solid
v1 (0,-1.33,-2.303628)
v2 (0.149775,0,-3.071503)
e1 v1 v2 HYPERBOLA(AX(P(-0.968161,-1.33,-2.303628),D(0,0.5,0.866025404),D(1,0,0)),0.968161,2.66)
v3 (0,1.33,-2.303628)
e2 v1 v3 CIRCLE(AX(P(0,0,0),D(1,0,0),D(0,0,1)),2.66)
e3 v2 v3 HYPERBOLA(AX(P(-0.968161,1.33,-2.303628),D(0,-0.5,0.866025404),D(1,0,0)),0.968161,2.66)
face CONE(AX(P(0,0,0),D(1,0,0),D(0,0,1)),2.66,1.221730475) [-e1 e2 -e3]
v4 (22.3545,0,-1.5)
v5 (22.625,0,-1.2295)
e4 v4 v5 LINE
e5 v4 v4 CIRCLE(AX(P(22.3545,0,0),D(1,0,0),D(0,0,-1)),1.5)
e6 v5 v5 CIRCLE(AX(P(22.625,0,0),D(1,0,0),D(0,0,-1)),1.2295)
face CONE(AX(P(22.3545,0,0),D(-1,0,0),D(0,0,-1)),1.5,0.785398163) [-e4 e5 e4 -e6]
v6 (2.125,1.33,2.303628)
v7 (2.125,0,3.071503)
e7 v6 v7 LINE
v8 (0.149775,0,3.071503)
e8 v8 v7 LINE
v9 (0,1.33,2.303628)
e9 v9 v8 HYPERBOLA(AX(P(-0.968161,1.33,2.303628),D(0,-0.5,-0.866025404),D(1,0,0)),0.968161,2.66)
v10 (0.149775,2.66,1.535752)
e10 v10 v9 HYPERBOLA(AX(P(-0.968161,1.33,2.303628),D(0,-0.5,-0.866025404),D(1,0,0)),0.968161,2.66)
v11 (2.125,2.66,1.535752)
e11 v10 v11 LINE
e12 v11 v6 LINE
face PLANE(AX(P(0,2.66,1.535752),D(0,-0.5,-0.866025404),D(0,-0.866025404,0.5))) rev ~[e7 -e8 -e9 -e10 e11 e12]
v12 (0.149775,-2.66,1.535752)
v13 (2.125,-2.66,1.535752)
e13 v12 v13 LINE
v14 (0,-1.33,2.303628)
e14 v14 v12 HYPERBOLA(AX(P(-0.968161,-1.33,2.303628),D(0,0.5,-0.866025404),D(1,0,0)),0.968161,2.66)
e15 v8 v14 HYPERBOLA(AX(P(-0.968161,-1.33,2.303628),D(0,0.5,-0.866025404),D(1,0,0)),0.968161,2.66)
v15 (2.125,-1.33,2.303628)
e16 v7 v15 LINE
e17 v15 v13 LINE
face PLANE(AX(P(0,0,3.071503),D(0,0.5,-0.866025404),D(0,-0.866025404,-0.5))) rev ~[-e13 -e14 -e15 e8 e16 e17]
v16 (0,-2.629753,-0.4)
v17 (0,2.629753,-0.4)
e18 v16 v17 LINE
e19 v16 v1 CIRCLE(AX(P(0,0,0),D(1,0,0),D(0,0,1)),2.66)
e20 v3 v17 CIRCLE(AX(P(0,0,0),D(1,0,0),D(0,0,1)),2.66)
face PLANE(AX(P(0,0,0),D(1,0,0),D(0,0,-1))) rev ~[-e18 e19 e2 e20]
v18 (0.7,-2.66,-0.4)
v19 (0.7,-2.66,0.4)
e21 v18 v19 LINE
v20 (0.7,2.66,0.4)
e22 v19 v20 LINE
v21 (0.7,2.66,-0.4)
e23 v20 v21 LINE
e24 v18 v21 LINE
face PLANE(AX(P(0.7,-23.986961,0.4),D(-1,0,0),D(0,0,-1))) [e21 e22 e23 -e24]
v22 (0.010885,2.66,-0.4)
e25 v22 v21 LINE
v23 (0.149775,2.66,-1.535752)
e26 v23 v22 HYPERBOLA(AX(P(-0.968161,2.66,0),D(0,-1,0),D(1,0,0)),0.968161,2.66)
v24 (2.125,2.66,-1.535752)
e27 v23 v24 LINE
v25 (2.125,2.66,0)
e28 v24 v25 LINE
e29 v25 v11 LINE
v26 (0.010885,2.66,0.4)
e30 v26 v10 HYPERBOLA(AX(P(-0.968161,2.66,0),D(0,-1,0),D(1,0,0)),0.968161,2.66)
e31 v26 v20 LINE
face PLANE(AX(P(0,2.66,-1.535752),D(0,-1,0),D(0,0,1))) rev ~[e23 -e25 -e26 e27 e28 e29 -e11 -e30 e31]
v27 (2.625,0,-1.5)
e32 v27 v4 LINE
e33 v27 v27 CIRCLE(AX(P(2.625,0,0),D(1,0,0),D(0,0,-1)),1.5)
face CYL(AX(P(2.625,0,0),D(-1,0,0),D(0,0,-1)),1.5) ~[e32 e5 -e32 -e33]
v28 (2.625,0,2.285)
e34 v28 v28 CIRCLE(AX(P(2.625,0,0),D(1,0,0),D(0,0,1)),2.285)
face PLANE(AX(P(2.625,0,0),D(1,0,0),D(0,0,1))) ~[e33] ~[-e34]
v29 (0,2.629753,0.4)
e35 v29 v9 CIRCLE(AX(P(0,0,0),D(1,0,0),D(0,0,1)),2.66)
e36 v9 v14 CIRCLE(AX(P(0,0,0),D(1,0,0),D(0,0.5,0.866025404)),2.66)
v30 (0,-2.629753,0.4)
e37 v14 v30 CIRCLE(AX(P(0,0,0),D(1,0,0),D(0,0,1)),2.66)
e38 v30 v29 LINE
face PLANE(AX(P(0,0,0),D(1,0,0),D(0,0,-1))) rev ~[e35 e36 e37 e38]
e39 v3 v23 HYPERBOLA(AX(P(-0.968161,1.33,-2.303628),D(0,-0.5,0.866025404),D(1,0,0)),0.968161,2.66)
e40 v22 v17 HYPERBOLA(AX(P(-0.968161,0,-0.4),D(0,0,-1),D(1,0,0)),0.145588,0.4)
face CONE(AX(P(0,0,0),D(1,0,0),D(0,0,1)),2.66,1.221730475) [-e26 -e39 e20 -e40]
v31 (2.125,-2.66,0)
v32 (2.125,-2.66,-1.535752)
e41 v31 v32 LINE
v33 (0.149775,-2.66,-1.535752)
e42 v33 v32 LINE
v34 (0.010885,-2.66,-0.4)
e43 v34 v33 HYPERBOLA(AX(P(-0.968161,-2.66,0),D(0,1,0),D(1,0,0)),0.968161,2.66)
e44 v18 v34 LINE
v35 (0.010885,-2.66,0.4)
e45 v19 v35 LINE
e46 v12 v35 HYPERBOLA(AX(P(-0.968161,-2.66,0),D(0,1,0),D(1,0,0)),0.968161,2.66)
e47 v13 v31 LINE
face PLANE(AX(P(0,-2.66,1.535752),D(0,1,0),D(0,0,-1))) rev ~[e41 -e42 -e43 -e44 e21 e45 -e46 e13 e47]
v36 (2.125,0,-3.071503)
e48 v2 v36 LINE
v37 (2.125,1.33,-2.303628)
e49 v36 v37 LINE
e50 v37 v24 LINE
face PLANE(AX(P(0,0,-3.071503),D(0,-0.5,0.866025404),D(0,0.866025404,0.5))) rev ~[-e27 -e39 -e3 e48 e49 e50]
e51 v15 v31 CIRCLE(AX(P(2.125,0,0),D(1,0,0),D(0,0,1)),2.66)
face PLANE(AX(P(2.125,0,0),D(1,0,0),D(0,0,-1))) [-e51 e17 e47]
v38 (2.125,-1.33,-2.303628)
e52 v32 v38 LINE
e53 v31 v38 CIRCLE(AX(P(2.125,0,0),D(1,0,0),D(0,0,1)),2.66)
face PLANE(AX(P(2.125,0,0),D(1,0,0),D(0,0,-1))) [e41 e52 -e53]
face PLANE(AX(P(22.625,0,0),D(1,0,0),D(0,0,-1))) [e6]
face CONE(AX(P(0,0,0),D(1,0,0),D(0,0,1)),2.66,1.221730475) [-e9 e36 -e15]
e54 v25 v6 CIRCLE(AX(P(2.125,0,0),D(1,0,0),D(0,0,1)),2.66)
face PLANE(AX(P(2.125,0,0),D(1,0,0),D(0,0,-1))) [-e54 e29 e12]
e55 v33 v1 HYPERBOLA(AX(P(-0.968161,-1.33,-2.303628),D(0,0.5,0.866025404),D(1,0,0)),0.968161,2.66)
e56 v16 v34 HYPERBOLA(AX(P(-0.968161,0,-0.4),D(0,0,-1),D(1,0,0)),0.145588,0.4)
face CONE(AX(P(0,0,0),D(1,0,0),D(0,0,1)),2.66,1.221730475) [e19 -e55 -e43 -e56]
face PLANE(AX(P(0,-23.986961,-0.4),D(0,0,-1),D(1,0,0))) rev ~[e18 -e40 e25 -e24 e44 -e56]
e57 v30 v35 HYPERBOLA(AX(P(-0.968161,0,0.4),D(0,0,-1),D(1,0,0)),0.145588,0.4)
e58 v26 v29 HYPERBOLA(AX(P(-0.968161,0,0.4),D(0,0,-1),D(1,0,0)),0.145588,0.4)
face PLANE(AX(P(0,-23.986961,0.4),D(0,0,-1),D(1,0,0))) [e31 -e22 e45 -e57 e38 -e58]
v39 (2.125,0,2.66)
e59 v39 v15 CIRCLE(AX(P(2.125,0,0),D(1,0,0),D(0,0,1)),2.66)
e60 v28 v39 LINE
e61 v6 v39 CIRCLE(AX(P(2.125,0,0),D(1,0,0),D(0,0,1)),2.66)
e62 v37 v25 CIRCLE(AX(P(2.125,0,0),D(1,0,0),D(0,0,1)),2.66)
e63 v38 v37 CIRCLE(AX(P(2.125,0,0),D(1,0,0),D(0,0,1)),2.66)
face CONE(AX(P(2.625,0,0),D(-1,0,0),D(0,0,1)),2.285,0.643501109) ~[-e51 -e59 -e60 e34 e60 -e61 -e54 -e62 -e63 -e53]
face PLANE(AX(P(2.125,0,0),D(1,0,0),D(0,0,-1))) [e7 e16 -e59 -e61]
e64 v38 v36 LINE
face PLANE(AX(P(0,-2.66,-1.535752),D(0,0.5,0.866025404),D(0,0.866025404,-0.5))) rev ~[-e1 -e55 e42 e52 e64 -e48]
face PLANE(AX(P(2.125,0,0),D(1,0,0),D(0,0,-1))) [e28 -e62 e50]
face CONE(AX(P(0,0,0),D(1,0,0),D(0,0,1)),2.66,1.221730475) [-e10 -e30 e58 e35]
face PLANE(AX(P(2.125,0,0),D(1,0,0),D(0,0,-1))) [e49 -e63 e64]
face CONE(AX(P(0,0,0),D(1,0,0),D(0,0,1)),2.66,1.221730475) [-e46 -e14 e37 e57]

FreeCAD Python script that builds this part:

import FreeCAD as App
import Part
import Sketcher

V = App.Vector
Q = App.Units.Quantity


def edges_at(feature, points):
    """Names of the edges that pass closest to the given points."""
    edges = feature.Shape.Edges
    near = lambda p: min(range(len(edges)), key=lambda i: edges[i].distToShape(Part.Vertex(*p))[0])
    return sorted({f"Edge{near(p) + 1}" for p in points})


def add_polygon(sketch, points):
    """Adds a closed chain of lines whose ends are joined by coincident constraints."""
    first, n = sketch.GeometryCount, len(points)
    for a, b in zip(points, points[1:] + points[:1]):
        sketch.addGeometry(Part.LineSegment(App.Vector(*a, 0), App.Vector(*b, 0)), False)
    for i in range(n):
        sketch.addConstraint(Sketcher.Constraint("Coincident", first + i, 2, first + (i + 1) % n, 1))

doc = App.newDocument("Part")
body = doc.addObject("PartDesign::Body", "Body")

# Sketch on YZ plane
sketch1 = doc.addObject("Sketcher::SketchObject", "Sketch")
body.addObject(sketch1)
sketch1.AttachmentSupport = (doc.YZ_Plane, [""])
sketch1.MapMode = "FlatFace"
add_polygon(sketch1, [(-2.7, -1.5), (0, -3.1), (2.7, -1.5), (2.7, 1.5), (0, 3.1), (-2.7, 1.5)])  # lines 0-5
sketch1.addConstraint(Sketcher.Constraint("Vertical", 2))
sketch1.addConstraint(Sketcher.Constraint("Vertical", 5))
sketch1.addConstraint(Sketcher.Constraint("Symmetric", 0, 2, 3, 2, -1, 1))
sketch1.addConstraint(Sketcher.Constraint("Symmetric", 1, 2, 4, 2, -1, 1))
sketch1.addConstraint(Sketcher.Constraint("PointOnObject", 0, 2, -2))
sketch1.addConstraint(Sketcher.Constraint("Parallel", 0, 3))
sketch1.addConstraint(Sketcher.Constraint("Horizontal", 2, 2, 4, 2))
sketch1.addConstraint(Sketcher.Constraint("Angle", 0, Q("-30 deg")))
sketch1.addConstraint(Sketcher.Constraint("DistanceX", -1, 1, 1, 2, 2.66))
sketch1.addConstraint(Sketcher.Constraint("DistanceY", 2, 1, 2, 2, 3.071503))
pad1 = doc.addObject("PartDesign::Pad", "Pad")
body.addObject(pad1)
pad1.Profile = sketch1
pad1.Length = 2.125

# Sketch on XY plane
sketch2 = doc.addObject("Sketcher::SketchObject", "Sketch001")
body.addObject(sketch2)
sketch2.AttachmentSupport = (doc.XY_Plane, [""])
sketch2.MapMode = "FlatFace"
add_polygon(sketch2, [(2.6, 0), (2.1, 0), (2.1, -2.7), (2.6, -2.3)])  # lines 0-3
sketch2.addConstraint(Sketcher.Constraint("Horizontal", 0))
sketch2.addConstraint(Sketcher.Constraint("Vertical", 1))
sketch2.addConstraint(Sketcher.Constraint("Vertical", 3))
sketch2.addConstraint(Sketcher.Constraint("PointOnObject", 0, 2, -1))
sketch2.addConstraint(Sketcher.Constraint("DistanceX", 0, 2, 0, 1, 0.5))
sketch2.addConstraint(Sketcher.Constraint("DistanceY", 1, 2, 1, 1, 2.66))
sketch2.addConstraint(Sketcher.Constraint("DistanceY", 3, 1, 3, 2, 2.285))
sketch2.addConstraint(Sketcher.Constraint("DistanceX", -1, 1, 0, 2, 2.125))
revolution = doc.addObject("PartDesign::Revolution", "Revolution")
body.addObject(revolution)
revolution.Profile = sketch2
revolution.ReferenceAxis = (sketch2, ["H_Axis"])
revolution.Angle = 360

# Sketch on YZ plane
sketch3 = doc.addObject("Sketcher::SketchObject", "Sketch002")
body.addObject(sketch3)
sketch3.AttachmentSupport = (doc.YZ_Plane, [""])
sketch3.MapMode = "FlatFace"
sketch3.AttachmentOffset = App.Placement(V(0, 0, 2.625), App.Rotation())
sketch3.addGeometry(Part.Circle(V(0, 0, 0), V(0, 0, 1), 1.5), False)
sketch3.addConstraint(Sketcher.Constraint("Coincident", 0, 3, -1, 1))
sketch3.addConstraint(Sketcher.Constraint("Diameter", 0, 3.0))
pad2 = doc.addObject("PartDesign::Pad", "Pad001")
body.addObject(pad2)
pad2.Profile = sketch3
pad2.Length = 20
doc.recompute()

chamfer = doc.addObject("PartDesign::Chamfer", "Chamfer")
body.addObject(chamfer)
chamfer.Base = (pad2, edges_at(pad2, [(22.625, 0, 1.5)]))
chamfer.Size = 0.2705

# Sketch on XZ plane
sketch4 = doc.addObject("Sketcher::SketchObject", "Sketch003")
body.addObject(sketch4)
sketch4.AttachmentSupport = (doc.XZ_Plane, [""])
sketch4.MapMode = "FlatFace"
add_polygon(sketch4, [(0, -3.07), (0, -2.66), (0.15, -3.07)])  # lines 0-2
sketch4.addConstraint(Sketcher.Constraint("Vertical", 0))
sketch4.addConstraint(Sketcher.Constraint("Horizontal", 2))
sketch4.addConstraint(Sketcher.Constraint("PointOnObject", 0, 2, -2))
sketch4.addConstraint(Sketcher.Constraint("Angle", 1, Q("-70 deg")))
sketch4.addConstraint(Sketcher.Constraint("DistanceY", 0, 2, -1, 1, 2.66))
sketch4.addConstraint(Sketcher.Constraint("DistanceX", 2, 2, 2, 1, 0.149775))
groove = doc.addObject("PartDesign::Groove", "Groove")
body.addObject(groove)
groove.Profile = sketch4
groove.ReferenceAxis = (sketch4, ["H_Axis"])
groove.Angle = 360

# Sketch on XZ plane
sketch5 = doc.addObject("Sketcher::SketchObject", "Sketch004")
body.addObject(sketch5)
sketch5.AttachmentSupport = (doc.XZ_Plane, [""])
sketch5.MapMode = "FlatFace"
add_polygon(sketch5, [(0, -0.4), (0, 0.4), (0.7, 0.4), (0.7, -0.4)])  # lines 0-3
sketch5.addConstraint(Sketcher.Constraint("Vertical", 0))
sketch5.addConstraint(Sketcher.Constraint("Horizontal", 1))
sketch5.addConstraint(Sketcher.Constraint("Vertical", 2))
sketch5.addConstraint(Sketcher.Constraint("Horizontal", 3))
sketch5.addConstraint(Sketcher.Constraint("Symmetric", 0, 2, 3, 2, -1, 1))
sketch5.addConstraint(Sketcher.Constraint("DistanceX", 1, 1, 1, 2, 0.7))
sketch5.addConstraint(Sketcher.Constraint("DistanceY", 0, 1, 0, 2, 0.8))
pocket1 = doc.addObject("PartDesign::Pocket", "Pocket")
body.addObject(pocket1)
pocket1.Profile = sketch5
pocket1.Type = "ThroughAll"
pocket1.Midplane = True

doc.recompute()
